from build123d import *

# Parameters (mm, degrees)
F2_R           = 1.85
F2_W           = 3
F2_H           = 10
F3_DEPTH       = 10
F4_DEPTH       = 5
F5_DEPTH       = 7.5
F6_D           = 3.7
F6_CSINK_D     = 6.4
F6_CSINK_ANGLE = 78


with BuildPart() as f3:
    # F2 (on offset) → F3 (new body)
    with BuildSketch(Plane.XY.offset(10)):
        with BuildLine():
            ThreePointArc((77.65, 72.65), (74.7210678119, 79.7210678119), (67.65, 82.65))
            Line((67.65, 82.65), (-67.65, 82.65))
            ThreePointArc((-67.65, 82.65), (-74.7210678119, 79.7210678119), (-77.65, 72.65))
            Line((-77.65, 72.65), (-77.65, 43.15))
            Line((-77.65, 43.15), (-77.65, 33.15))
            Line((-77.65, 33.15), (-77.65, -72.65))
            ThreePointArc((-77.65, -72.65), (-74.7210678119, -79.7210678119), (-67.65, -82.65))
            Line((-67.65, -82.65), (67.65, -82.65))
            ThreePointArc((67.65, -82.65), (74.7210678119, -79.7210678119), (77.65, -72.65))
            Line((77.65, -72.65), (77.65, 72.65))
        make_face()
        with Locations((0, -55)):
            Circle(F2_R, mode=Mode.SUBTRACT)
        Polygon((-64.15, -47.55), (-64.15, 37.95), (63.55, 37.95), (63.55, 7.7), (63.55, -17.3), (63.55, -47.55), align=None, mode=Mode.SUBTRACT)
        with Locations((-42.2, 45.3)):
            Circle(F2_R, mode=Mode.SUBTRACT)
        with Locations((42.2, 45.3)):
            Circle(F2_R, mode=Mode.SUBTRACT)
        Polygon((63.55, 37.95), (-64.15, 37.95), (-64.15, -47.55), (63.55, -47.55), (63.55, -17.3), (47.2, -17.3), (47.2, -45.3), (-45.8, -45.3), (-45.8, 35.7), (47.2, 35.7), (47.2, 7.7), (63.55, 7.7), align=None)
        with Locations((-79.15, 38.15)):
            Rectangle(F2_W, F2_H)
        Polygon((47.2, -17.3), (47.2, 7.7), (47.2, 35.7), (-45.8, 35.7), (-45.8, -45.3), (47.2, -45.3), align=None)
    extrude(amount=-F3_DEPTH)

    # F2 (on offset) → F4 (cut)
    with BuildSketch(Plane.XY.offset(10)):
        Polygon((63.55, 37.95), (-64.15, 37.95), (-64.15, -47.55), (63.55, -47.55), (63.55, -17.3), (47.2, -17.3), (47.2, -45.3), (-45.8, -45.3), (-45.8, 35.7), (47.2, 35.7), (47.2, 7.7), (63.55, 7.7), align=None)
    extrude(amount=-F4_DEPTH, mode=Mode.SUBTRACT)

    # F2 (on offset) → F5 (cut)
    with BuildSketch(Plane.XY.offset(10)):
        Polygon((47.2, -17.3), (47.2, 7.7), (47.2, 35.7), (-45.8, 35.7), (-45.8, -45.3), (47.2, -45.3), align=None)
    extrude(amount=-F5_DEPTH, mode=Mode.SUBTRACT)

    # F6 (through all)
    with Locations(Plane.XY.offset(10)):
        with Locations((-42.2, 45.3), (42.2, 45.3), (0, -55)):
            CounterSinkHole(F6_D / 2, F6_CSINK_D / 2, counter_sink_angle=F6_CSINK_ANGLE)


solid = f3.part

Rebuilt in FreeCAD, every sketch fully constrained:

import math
import FreeCAD as App
import Part
import Sketcher
from FreeCAD import Vector
Q = App.Units.Quantity

doc = App.newDocument("Part")
body = doc.addObject("PartDesign::Body", "Body")

# Sketch on XY plane
sketch1 = body.newObject("Sketcher::SketchObject", "Sketch")
sketch1.AttachmentSupport = (doc.getObject("XY_Plane"), [""])
sketch1.MapMode = "FlatFace"
sketch1.AttachmentOffset = App.Placement(Vector(0, 0, 10), App.Rotation())
sketch1.addGeometry([
    Part.ArcOfCircle(Part.Circle(Vector(67.7, 72.7, 0), Vector(0, 0, 1), 10), math.radians(0), math.radians(90)),  # 0
    Part.LineSegment(Vector(67.7, 82.7, 0), Vector(-67.7, 82.7, 0)),  # 1
    Part.ArcOfCircle(Part.Circle(Vector(-67.7, 72.7, 0), Vector(0, 0, 1), 10), math.radians(90), math.radians(180)),  # 2
    Part.LineSegment(Vector(-77.7, 72.7, 0), Vector(-77.7, 43.1, 0)),  # 3
    Part.LineSegment(Vector(-77.7, 43.1, 0), Vector(-80.7, 43.1, 0)),  # 4
    Part.LineSegment(Vector(-80.7, 43.1, 0), Vector(-80.7, 33.1, 0)),  # 5
    Part.LineSegment(Vector(-80.7, 33.1, 0), Vector(-77.7, 33.1, 0)),  # 6
    Part.LineSegment(Vector(-77.7, 33.1, 0), Vector(-77.7, -72.7, 0)),  # 7
    Part.ArcOfCircle(Part.Circle(Vector(-67.7, -72.7, 0), Vector(0, 0, 1), 10), math.radians(180), math.radians(270)),  # 8
    Part.LineSegment(Vector(-67.7, -82.7, 0), Vector(67.7, -82.7, 0)),  # 9
    Part.ArcOfCircle(Part.Circle(Vector(67.7, -72.7, 0), Vector(0, 0, 1), 10), math.radians(-90), math.radians(0)),  # 10
    Part.LineSegment(Vector(77.7, -72.7, 0), Vector(77.7, 72.7, 0)),  # 11
    Part.Circle(Vector(0, -55, 0), Vector(0, 0, 1), 1.9),  # 12
    Part.Circle(Vector(-42.2, 45.3, 0), Vector(0, 0, 1), 1.9),  # 13
    Part.LineSegment(Vector(47.2, 7.7, 0), Vector(63.5, 7.7, 0)),  # 14
    Part.LineSegment(Vector(63.5, 7.7, 0), Vector(63.5, -17.3, 0)),  # 15
    Part.LineSegment(Vector(63.5, -17.3, 0), Vector(47.2, -17.3, 0)),  # 16
    Part.LineSegment(Vector(47.2, -17.3, 0), Vector(47.2, 7.7, 0)),  # 17
    Part.Circle(Vector(42.2, 45.3, 0), Vector(0, 0, 1), 1.9),  # 18
], False)
sketch1.addConstraint([
    Sketcher.Constraint("Tangent", 0, 2, 1, 1),
    Sketcher.Constraint("Tangent", 1, 2, 2, 1),
    Sketcher.Constraint("Tangent", 2, 2, 3, 1),
    Sketcher.Constraint("Coincident", 3, 2, 4, 1),
    Sketcher.Constraint("Coincident", 4, 2, 5, 1),
    Sketcher.Constraint("Coincident", 5, 2, 6, 1),
    Sketcher.Constraint("Coincident", 6, 2, 7, 1),
    Sketcher.Constraint("Tangent", 7, 2, 8, 1),
    Sketcher.Constraint("Tangent", 8, 2, 9, 1),
    Sketcher.Constraint("Tangent", 9, 2, 10, 1),
    Sketcher.Constraint("Tangent", 10, 2, 11, 1),
    Sketcher.Constraint("Tangent", 11, 2, 0, 1),
    Sketcher.Constraint("Coincident", 14, 2, 15, 1),
    Sketcher.Constraint("Coincident", 15, 2, 16, 1),
    Sketcher.Constraint("Coincident", 16, 2, 17, 1),
    Sketcher.Constraint("Coincident", 17, 2, 14, 1),
    Sketcher.Constraint("Horizontal", 1),
    Sketcher.Constraint("Vertical", 3),
    Sketcher.Constraint("Horizontal", 4),
    Sketcher.Constraint("Vertical", 5),
    Sketcher.Constraint("Horizontal", 6),
    Sketcher.Constraint("Vertical", 7),
    Sketcher.Constraint("Horizontal", 9),
    Sketcher.Constraint("Vertical", 11),
    Sketcher.Constraint("Horizontal", 14),
    Sketcher.Constraint("Vertical", 15),
    Sketcher.Constraint("Horizontal", 16),
    Sketcher.Constraint("Vertical", 17),
    Sketcher.Constraint("Equal", 0, 2),
    Sketcher.Constraint("Equal", 2, 8),
    Sketcher.Constraint("Equal", 8, 10),
    Sketcher.Constraint("Equal", 12, 13),
    Sketcher.Constraint("Equal", 13, 18),
    Sketcher.Constraint("Symmetric", 0, 3, 8, 3, -1, 1),
    Sketcher.Constraint("Symmetric", 13, 3, 18, 3, -2),
    Sketcher.Constraint("PointOnObject", 12, 3, -2),
    Sketcher.Constraint("Vertical", 2, 3, 8, 3),
    Sketcher.Constraint("Radius", 0, Q("10 mm")),
    Sketcher.Constraint("Diameter", 12, Q("3.7 mm")),
    Sketcher.Constraint("DistanceX", 4, 2, 4, 1, Q("3 mm")),
    Sketcher.Constraint("DistanceY", 5, 2, 5, 1, Q("10 mm")),
    Sketcher.Constraint("DistanceY", 15, 2, 15, 1, Q("25 mm")),
    Sketcher.Constraint("DistanceX", 1, 2, 1, 1, Q("135.3 mm")),
    Sketcher.Constraint("DistanceY", 3, 2, 3, 1, Q("29.5 mm")),
    Sketcher.Constraint("DistanceY", 7, 2, 7, 1, Q("105.8 mm")),
    Sketcher.Constraint("DistanceY", 12, 3, -1, 1, Q("55 mm")),
    Sketcher.Constraint("DistanceX", 18, 3, 16, 2, Q("5 mm")),
    Sketcher.Constraint("DistanceX", 14, 1, 14, 2, Q("16.35 mm")),
    Sketcher.Constraint("DistanceX", 13, 3, -1, 1, Q("42.2 mm")),
    Sketcher.Constraint("DistanceY", -1, 1, 13, 3, Q("45.3 mm")),
    Sketcher.Constraint("DistanceY", -1, 1, 14, 2, Q("7.7 mm")),
])
pad1 = body.newObject("PartDesign::Pad", "Pad")
pad1.Profile = sketch1
pad1.Length = 10
pad1.Reversed = True

# Sketch on XY plane
sketch2 = body.newObject("Sketcher::SketchObject", "Sketch001")
sketch2.AttachmentSupport = (doc.getObject("XY_Plane"), [""])
sketch2.MapMode = "FlatFace"
sketch2.AttachmentOffset = App.Placement(Vector(0, 0, 10), App.Rotation())
sketch2.addGeometry([
    Part.LineSegment(Vector(64, 38, 0), Vector(-64, 38, 0)),  # 0
    Part.LineSegment(Vector(-64, 38, 0), Vector(-64, -48, 0)),  # 1
    Part.LineSegment(Vector(-64, -48, 0), Vector(64, -48, 0)),  # 2
    Part.LineSegment(Vector(64, -48, 0), Vector(64, -17, 0)),  # 3
    Part.LineSegment(Vector(64, -17, 0), Vector(47, -17, 0)),  # 4
    Part.LineSegment(Vector(47, -17, 0), Vector(47, -45, 0)),  # 5
    Part.LineSegment(Vector(47, -45, 0), Vector(-46, -45, 0)),  # 6
    Part.LineSegment(Vector(-46, -45, 0), Vector(-46, 36, 0)),  # 7
    Part.LineSegment(Vector(-46, 36, 0), Vector(47, 36, 0)),  # 8
    Part.LineSegment(Vector(47, 36, 0), Vector(47, 8, 0)),  # 9
    Part.LineSegment(Vector(47, 8, 0), Vector(64, 8, 0)),  # 10
    Part.LineSegment(Vector(64, 8, 0), Vector(64, 38, 0)),  # 11
], False)
sketch2.addConstraint([
    Sketcher.Constraint("Coincident", 0, 2, 1, 1),
    Sketcher.Constraint("Coincident", 1, 2, 2, 1),
    Sketcher.Constraint("Coincident", 2, 2, 3, 1),
    Sketcher.Constraint("Coincident", 3, 2, 4, 1),
    Sketcher.Constraint("Coincident", 4, 2, 5, 1),
    Sketcher.Constraint("Coincident", 5, 2, 6, 1),
    Sketcher.Constraint("Coincident", 6, 2, 7, 1),
    Sketcher.Constraint("Coincident", 7, 2, 8, 1),
    Sketcher.Constraint("Coincident", 8, 2, 9, 1),
    Sketcher.Constraint("Coincident", 9, 2, 10, 1),
    Sketcher.Constraint("Coincident", 10, 2, 11, 1),
    Sketcher.Constraint("Coincident", 11, 2, 0, 1),
    Sketcher.Constraint("Horizontal", 0),
    Sketcher.Constraint("Vertical", 1),
    Sketcher.Constraint("Horizontal", 2),
    Sketcher.Constraint("Vertical", 3),
    Sketcher.Constraint("Horizontal", 4),
    Sketcher.Constraint("Vertical", 5),
    Sketcher.Constraint("Horizontal", 6),
    Sketcher.Constraint("Vertical", 7),
    Sketcher.Constraint("Horizontal", 8),
    Sketcher.Constraint("Vertical", 9),
    Sketcher.Constraint("Horizontal", 10),
    Sketcher.Constraint("Vertical", 11),
    Sketcher.Constraint("Vertical", 5, 2, 8, 2),
    Sketcher.Constraint("Vertical", 3, 2, 10, 2),
    Sketcher.Constraint("Equal", 5, 9),
    Sketcher.Constraint("Equal", 3, 11),
    Sketcher.Constraint("DistanceX", 6, 2, 6, 1, Q("93 mm")),
    Sketcher.Constraint("DistanceY", 5, 2, 5, 1, Q("28 mm")),
    Sketcher.Constraint("DistanceY", 7, 1, 7, 2, Q("81 mm")),
    Sketcher.Constraint("DistanceX", 0, 2, 0, 1, Q("127.7 mm")),
    Sketcher.Constraint("DistanceY", 1, 2, 1, 1, Q("85.5 mm")),
    Sketcher.Constraint("DistanceX", 4, 2, 4, 1, Q("16.35 mm")),
    Sketcher.Constraint("DistanceY", 3, 2, -1, 1, Q("17.3 mm")),
    Sketcher.Constraint("DistanceX", -1, 1, 4, 2, Q("47.2 mm")),
])
pocket1 = body.newObject("PartDesign::Pocket", "Pocket")
pocket1.Profile = sketch2
pocket1.Length = 5

# Sketch on XY plane
sketch3 = body.newObject("Sketcher::SketchObject", "Sketch002")
sketch3.AttachmentSupport = (doc.getObject("XY_Plane"), [""])
sketch3.MapMode = "FlatFace"
sketch3.AttachmentOffset = App.Placement(Vector(0, 0, 10), App.Rotation())
sketch3.addGeometry([
    Part.LineSegment(Vector(47, 36, 0), Vector(-46, 36, 0)),
    Part.LineSegment(Vector(-46, 36, 0), Vector(-46, -45, 0)),
    Part.LineSegment(Vector(-46, -45, 0), Vector(47, -45, 0)),
    Part.LineSegment(Vector(47, -45, 0), Vector(47, 36, 0)),
], False)
sketch3.addConstraint([
    Sketcher.Constraint("Coincident", 0, 2, 1, 1),
    Sketcher.Constraint("Coincident", 1, 2, 2, 1),
    Sketcher.Constraint("Coincident", 2, 2, 3, 1),
    Sketcher.Constraint("Coincident", 3, 2, 0, 1),
    Sketcher.Constraint("Horizontal", 0),
    Sketcher.Constraint("Vertical", 1),
    Sketcher.Constraint("Horizontal", 2),
    Sketcher.Constraint("Vertical", 3),
    Sketcher.Constraint("DistanceX", 0, 2, 0, 1, Q("93 mm")),
    Sketcher.Constraint("DistanceY", 1, 2, 1, 1, Q("81 mm")),
    Sketcher.Constraint("DistanceX", 0, 2, -1, 1, Q("45.8 mm")),
    Sketcher.Constraint("DistanceY", -1, 1, 0, 2, Q("35.7 mm")),
])
pocket2 = body.newObject("PartDesign::Pocket", "Pocket001")
pocket2.Profile = sketch3
pocket2.Length = 7.5

# Sketch on XY plane
sketch4 = body.newObject("Sketcher::SketchObject", "Sketch003")
sketch4.AttachmentSupport = (doc.getObject("XY_Plane"), [""])
sketch4.MapMode = "FlatFace"
sketch4.AttachmentOffset = App.Placement(Vector(0, 0, 10), App.Rotation())
sketch4.addGeometry([
    Part.Circle(Vector(-42.2, 45.3, 0), Vector(0, 0, 1), 1.9),
    Part.Circle(Vector(42.2, 45.3, 0), Vector(0, 0, 1), 1.9),
    Part.Circle(Vector(0, -55, 0), Vector(0, 0, 1), 1.9),
], False)
sketch4.addConstraint([
    Sketcher.Constraint("Equal", 0, 1),
    Sketcher.Constraint("Equal", 1, 2),
    Sketcher.Constraint("Symmetric", 0, 3, 1, 3, -2),
    Sketcher.Constraint("PointOnObject", 2, 3, -2),
    Sketcher.Constraint("Diameter", 0, Q("3.7 mm")),
    Sketcher.Constraint("DistanceY", 2, 3, -1, 1, Q("55 mm")),
    Sketcher.Constraint("DistanceX", 0, 3, -1, 1, Q("42.2 mm")),
    Sketcher.Constraint("DistanceY", -1, 1, 0, 3, Q("45.3 mm")),
])
doc.recompute()
hole = body.newObject("PartDesign::Hole", "Hole")
hole.Profile = sketch4
hole.ThreadType = "None"
hole.Diameter = 3.7
hole.DepthType = "ThroughAll"
hole.HoleCutType = "Countersink"
hole.HoleCutDiameter = 6.4
hole.HoleCutCountersinkAngle = 78

doc.recompute()
